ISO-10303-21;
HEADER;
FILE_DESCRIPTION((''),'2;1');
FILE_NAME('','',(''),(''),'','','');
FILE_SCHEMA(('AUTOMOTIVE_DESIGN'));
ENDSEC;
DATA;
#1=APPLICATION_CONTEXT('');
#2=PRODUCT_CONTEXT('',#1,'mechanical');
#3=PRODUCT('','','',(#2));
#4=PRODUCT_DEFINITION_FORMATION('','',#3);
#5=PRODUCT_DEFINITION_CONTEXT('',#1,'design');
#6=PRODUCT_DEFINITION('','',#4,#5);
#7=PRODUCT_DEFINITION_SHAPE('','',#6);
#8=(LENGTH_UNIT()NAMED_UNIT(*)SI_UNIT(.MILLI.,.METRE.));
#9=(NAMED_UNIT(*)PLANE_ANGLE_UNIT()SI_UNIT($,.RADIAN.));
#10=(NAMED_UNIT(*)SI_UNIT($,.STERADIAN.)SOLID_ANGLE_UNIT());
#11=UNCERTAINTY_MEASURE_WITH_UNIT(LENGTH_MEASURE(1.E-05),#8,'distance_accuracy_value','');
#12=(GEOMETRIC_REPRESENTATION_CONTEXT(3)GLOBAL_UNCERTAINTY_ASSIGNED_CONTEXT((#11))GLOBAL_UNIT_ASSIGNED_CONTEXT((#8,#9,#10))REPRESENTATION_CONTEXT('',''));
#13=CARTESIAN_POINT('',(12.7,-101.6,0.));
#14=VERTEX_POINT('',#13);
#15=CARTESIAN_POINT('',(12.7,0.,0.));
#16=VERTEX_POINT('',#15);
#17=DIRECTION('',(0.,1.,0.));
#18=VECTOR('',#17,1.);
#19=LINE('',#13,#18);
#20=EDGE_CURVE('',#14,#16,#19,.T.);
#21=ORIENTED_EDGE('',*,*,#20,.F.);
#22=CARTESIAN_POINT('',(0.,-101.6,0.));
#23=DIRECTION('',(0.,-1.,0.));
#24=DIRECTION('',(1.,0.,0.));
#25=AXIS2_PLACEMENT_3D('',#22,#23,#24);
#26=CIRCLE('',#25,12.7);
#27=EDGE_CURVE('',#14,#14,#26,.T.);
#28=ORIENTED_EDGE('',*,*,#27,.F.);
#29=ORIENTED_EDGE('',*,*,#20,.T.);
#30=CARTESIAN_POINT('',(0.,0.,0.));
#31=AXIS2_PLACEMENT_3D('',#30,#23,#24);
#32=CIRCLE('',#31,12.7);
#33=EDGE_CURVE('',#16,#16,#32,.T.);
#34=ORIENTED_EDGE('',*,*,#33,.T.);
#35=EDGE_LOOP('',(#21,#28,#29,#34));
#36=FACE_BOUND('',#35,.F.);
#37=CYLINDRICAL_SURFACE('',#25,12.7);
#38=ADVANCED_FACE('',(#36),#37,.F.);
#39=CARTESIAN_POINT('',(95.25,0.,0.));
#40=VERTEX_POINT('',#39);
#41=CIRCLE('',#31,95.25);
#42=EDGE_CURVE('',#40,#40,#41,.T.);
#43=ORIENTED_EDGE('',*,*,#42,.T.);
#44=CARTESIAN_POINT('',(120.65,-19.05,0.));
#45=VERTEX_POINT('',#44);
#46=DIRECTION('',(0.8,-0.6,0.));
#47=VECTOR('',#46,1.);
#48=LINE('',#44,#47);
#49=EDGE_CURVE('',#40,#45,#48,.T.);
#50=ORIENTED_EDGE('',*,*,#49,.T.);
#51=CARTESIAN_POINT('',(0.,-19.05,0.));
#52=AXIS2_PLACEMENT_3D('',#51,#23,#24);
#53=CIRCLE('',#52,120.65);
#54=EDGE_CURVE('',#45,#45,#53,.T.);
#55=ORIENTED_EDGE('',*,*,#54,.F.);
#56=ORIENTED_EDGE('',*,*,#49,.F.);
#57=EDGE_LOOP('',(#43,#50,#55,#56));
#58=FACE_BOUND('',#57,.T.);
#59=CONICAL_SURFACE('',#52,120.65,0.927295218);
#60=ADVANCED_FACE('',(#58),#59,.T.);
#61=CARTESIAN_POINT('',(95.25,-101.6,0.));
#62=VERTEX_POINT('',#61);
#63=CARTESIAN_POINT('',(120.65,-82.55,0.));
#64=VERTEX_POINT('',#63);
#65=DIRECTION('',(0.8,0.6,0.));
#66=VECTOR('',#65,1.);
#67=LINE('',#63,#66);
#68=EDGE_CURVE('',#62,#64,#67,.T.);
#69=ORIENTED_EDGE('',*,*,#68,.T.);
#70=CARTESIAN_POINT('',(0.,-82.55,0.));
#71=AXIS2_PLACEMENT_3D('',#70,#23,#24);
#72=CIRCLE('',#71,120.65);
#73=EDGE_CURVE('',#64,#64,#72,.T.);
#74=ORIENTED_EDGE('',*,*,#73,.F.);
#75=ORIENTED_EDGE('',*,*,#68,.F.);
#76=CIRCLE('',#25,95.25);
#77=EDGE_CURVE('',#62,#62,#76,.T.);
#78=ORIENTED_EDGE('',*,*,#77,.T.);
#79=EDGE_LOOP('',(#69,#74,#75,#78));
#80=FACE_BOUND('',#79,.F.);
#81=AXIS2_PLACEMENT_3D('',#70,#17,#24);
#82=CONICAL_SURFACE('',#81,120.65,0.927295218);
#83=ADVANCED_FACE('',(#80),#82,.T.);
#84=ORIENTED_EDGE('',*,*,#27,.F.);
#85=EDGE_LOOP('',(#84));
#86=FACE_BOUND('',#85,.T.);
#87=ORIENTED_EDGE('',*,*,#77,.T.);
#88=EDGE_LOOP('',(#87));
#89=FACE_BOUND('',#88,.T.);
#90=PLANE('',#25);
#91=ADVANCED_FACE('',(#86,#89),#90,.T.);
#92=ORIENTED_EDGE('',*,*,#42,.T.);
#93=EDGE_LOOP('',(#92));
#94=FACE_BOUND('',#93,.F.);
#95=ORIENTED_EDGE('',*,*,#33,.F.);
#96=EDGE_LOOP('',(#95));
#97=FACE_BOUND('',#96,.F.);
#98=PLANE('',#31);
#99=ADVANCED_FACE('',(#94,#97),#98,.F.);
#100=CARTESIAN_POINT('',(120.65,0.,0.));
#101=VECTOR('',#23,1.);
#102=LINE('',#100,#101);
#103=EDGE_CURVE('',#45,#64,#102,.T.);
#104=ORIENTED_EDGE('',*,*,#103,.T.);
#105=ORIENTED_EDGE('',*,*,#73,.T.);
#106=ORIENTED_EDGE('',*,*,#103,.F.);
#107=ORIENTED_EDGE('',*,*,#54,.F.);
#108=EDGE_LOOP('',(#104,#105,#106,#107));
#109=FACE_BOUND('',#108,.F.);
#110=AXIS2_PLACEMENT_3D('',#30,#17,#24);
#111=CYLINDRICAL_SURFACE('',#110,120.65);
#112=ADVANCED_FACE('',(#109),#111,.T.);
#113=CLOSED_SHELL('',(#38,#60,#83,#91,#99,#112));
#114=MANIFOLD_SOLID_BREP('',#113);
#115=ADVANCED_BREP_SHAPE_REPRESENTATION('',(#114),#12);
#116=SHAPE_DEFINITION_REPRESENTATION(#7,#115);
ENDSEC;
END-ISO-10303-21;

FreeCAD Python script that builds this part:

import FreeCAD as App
import Part
import Sketcher

V = App.Vector
Q = App.Units.Quantity


def edges_at(feature, points):
    """Names of the edges that pass closest to the given points."""
    edges = feature.Shape.Edges
    near = lambda p: min(range(len(edges)), key=lambda i: edges[i].distToShape(Part.Vertex(*p))[0])
    return sorted({f"Edge{near(p) + 1}" for p in points})

doc = App.newDocument("Part")
params = doc.addObject("Spreadsheet::Sheet", "Params")
for row, (alias, value) in enumerate([
    ("sketch1_diameter", "9.5 in"),
    ("pad1_length", "4 in"),
    ("chamfer_size", "1 in"),
    ("chamfer_size2", "0.75 in"),
    ("chamfer2_size", "1 in"),
    ("chamfer2_size2", "0.75 in"),
    ("sketch2_diameter", "1 in"),
], start=1):
    params.set(f"A{row}", alias)
    params.set(f"B{row}", "=" + value)
    params.setAlias(f"B{row}", alias)

body = doc.addObject("PartDesign::Body", "Body")

sketch1 = doc.addObject("Sketcher::SketchObject", "Sketch")
body.addObject(sketch1)
sketch1.AttachmentSupport = (doc.XZ_Plane, [""])
sketch1.MapMode = "FlatFace"
sketch1.addGeometry(Part.Circle(V(0, 0, 0), V(0, 0, 1), 121), False)
sketch1.addConstraint(Sketcher.Constraint("Coincident", 0, 3, -1, 1))
sketch1.addConstraint(Sketcher.Constraint("Diameter", 0, Q("9.5 in")))
sketch1.setExpression("Constraints[1]", "Params.sketch1_diameter")
pad1 = doc.addObject("PartDesign::Pad", "Pad")
body.addObject(pad1)
pad1.Profile = sketch1
pad1.setExpression("Length", "Params.pad1_length")
doc.recompute()

chamfer = doc.addObject("PartDesign::Chamfer", "Chamfer")
body.addObject(chamfer)
chamfer.Base = (pad1, edges_at(pad1, [(-120.65, -101.6, 0)]))
chamfer.ChamferType = "Two distances"
chamfer.setExpression("Size", "Params.chamfer_size")
chamfer.setExpression("Size2", "Params.chamfer_size2")
chamfer.FlipDirection = True
doc.recompute()

chamfer2 = doc.addObject("PartDesign::Chamfer", "Chamfer001")
body.addObject(chamfer2)
chamfer2.Base = (chamfer, edges_at(chamfer, [(-120.65, 0, 0)]))
chamfer2.ChamferType = "Two distances"
chamfer2.setExpression("Size", "Params.chamfer2_size")
chamfer2.setExpression("Size2", "Params.chamfer2_size2")
chamfer2.FlipDirection = True

sketch2 = doc.addObject("Sketcher::SketchObject", "Sketch001")
body.addObject(sketch2)
sketch2.AttachmentSupport = (doc.XZ_Plane, [""])
sketch2.MapMode = "FlatFace"
sketch2.AttachmentOffset = App.Placement(V(0, 0, 4 * 25.4), App.Rotation())
sketch2.addGeometry(Part.Circle(V(0, 0, 0), V(0, 0, 1), 13), False)
sketch2.addConstraint(Sketcher.Constraint("Coincident", 0, 3, -1, 1))
sketch2.addConstraint(Sketcher.Constraint("Diameter", 0, Q("1 in")))
sketch2.setExpression("Constraints[1]", "Params.sketch2_diameter")
pocket1 = doc.addObject("PartDesign::Pocket", "Pocket")
body.addObject(pocket1)
pocket1.Profile = sketch2
pocket1.Type = "ThroughAll"

doc.recompute()
